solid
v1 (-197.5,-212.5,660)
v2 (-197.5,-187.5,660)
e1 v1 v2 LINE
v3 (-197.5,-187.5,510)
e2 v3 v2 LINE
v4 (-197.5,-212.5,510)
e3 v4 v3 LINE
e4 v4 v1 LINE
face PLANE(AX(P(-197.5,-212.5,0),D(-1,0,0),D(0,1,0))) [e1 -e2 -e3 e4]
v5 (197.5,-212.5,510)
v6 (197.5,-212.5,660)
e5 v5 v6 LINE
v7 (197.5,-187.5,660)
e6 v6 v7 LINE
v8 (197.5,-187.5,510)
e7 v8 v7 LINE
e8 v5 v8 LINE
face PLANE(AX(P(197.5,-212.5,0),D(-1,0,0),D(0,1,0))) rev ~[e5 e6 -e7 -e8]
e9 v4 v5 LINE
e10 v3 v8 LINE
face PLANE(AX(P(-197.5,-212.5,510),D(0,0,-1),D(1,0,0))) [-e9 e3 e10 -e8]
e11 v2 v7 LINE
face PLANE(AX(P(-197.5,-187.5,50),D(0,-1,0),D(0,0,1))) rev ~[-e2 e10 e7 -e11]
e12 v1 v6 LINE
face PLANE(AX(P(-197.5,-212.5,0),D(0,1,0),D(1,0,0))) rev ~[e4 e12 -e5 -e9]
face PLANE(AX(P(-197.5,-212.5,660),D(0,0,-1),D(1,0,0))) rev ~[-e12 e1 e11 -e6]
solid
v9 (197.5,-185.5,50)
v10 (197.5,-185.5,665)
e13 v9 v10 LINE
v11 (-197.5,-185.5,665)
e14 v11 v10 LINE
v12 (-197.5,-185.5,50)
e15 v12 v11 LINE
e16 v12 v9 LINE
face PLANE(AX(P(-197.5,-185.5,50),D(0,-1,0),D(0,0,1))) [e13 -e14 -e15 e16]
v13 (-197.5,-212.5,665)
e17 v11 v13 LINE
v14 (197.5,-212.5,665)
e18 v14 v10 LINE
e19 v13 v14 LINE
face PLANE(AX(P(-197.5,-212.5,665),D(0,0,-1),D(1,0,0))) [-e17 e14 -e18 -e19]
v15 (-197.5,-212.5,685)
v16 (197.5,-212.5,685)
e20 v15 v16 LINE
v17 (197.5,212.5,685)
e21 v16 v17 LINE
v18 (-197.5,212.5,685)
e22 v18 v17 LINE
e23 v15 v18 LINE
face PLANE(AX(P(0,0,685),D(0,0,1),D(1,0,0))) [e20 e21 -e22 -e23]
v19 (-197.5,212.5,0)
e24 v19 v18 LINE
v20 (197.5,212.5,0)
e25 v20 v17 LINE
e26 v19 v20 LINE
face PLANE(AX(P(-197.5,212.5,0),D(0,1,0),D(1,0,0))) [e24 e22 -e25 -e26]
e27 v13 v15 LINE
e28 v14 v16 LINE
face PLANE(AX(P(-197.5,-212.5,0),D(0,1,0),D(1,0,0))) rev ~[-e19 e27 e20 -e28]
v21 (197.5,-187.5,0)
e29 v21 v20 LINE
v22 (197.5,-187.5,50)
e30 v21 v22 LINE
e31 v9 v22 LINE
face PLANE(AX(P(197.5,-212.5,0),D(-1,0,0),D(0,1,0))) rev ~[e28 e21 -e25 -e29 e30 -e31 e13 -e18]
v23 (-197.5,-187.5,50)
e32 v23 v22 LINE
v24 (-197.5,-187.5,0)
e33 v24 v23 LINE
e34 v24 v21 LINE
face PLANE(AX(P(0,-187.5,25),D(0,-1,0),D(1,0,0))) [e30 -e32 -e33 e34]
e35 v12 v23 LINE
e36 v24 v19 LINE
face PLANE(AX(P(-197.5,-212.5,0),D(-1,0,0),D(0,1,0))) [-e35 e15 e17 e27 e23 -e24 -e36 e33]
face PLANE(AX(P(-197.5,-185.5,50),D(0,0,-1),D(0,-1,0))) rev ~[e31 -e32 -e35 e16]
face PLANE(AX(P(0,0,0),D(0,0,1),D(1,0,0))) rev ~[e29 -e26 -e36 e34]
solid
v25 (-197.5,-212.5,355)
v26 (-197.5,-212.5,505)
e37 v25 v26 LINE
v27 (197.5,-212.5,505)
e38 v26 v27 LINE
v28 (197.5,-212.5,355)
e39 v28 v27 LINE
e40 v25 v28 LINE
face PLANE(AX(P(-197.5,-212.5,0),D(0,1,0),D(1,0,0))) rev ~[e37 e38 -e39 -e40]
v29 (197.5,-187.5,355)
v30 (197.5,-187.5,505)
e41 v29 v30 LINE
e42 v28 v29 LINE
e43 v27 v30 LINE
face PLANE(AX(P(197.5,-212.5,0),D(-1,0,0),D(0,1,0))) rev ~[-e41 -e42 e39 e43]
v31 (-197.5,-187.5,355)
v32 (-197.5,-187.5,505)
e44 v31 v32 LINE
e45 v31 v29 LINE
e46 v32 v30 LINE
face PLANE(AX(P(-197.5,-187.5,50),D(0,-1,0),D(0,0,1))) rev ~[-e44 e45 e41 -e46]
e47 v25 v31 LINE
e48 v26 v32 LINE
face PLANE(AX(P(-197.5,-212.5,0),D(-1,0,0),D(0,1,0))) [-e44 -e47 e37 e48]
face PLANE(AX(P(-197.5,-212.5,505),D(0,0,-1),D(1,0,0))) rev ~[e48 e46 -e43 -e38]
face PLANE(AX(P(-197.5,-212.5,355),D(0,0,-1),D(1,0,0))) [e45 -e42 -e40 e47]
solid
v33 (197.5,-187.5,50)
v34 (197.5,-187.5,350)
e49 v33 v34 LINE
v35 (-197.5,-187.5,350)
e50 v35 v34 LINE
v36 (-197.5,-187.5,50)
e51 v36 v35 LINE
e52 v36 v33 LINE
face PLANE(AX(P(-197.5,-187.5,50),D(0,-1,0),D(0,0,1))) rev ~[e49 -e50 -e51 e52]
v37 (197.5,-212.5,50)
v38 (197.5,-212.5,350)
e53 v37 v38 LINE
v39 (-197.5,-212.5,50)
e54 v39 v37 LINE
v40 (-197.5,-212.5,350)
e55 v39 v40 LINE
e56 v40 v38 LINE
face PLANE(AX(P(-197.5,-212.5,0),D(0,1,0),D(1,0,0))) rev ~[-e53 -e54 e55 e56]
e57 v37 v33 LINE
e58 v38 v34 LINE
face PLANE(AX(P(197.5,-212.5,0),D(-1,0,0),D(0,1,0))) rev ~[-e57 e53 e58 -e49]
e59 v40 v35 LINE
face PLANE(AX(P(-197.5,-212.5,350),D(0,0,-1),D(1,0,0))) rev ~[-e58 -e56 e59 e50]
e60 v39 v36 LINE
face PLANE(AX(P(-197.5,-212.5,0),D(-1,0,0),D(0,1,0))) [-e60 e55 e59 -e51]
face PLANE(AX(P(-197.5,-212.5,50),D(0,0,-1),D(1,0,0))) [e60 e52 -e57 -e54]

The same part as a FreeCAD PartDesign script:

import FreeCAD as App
import Part
import Sketcher
Q = App.Units.Quantity

doc = App.newDocument("Part")
body = doc.addObject("PartDesign::Body", "Body")
body.AllowCompound = True

# Sketch on XY plane
sketch1 = doc.addObject("Sketcher::SketchObject", "Sketch")
body.addObject(sketch1)
sketch1.AttachmentSupport = (doc.XY_Plane, [""])
sketch1.MapMode = "FlatFace"
sketch1.addGeometry([
    Part.LineSegment(App.Vector(-198, 212, 0), App.Vector(-198, -212, 0)),
    Part.LineSegment(App.Vector(-198, -212, 0), App.Vector(198, -212, 0)),
    Part.LineSegment(App.Vector(198, -212, 0), App.Vector(198, 212, 0)),
    Part.LineSegment(App.Vector(198, 212, 0), App.Vector(-198, 212, 0)),
], False)
sketch1.addConstraint([
    Sketcher.Constraint("Coincident", 0, 2, 1, 1),
    Sketcher.Constraint("Coincident", 1, 2, 2, 1),
    Sketcher.Constraint("Coincident", 2, 2, 3, 1),
    Sketcher.Constraint("Coincident", 3, 2, 0, 1),
    Sketcher.Constraint("Vertical", 0),
    Sketcher.Constraint("Horizontal", 1),
    Sketcher.Constraint("Vertical", 2),
    Sketcher.Constraint("Horizontal", 3),
    Sketcher.Constraint("Symmetric", 0, 2, 2, 2, -1, 1),
    Sketcher.Constraint("DistanceX", 1, 1, 1, 2, Q("395 mm")),
    Sketcher.Constraint("DistanceY", 0, 2, 0, 1, Q("425 mm")),
])
pad1 = doc.addObject("PartDesign::Pad", "Pad")
body.addObject(pad1)
pad1.Profile = sketch1
pad1.Length = 685

# Sketch on XZ plane
sketch2 = doc.addObject("Sketcher::SketchObject", "Sketch001")
body.addObject(sketch2)
sketch2.AttachmentSupport = (doc.XZ_Plane, [""])
sketch2.MapMode = "FlatFace"
sketch2.AttachmentOffset = App.Placement(App.Vector(0, 0, 212.5), App.Rotation())
sketch2.addGeometry([
    Part.LineSegment(App.Vector(-198, 355, 0), App.Vector(-198, 350, 0)),  # 0
    Part.LineSegment(App.Vector(-198, 350, 0), App.Vector(198, 350, 0)),  # 1
    Part.LineSegment(App.Vector(198, 350, 0), App.Vector(198, 355, 0)),  # 2
    Part.LineSegment(App.Vector(198, 355, 0), App.Vector(-198, 355, 0)),  # 3
    Part.LineSegment(App.Vector(-198, 665, 0), App.Vector(-198, 660, 0)),  # 4
    Part.LineSegment(App.Vector(-198, 660, 0), App.Vector(198, 660, 0)),  # 5
    Part.LineSegment(App.Vector(198, 660, 0), App.Vector(198, 665, 0)),  # 6
    Part.LineSegment(App.Vector(198, 665, 0), App.Vector(-198, 665, 0)),  # 7
    Part.LineSegment(App.Vector(-198, 510, 0), App.Vector(-198, 505, 0)),  # 8
    Part.LineSegment(App.Vector(-198, 505, 0), App.Vector(198, 505, 0)),  # 9
    Part.LineSegment(App.Vector(198, 505, 0), App.Vector(198, 510, 0)),  # 10
    Part.LineSegment(App.Vector(198, 510, 0), App.Vector(-198, 510, 0)),  # 11
    Part.LineSegment(App.Vector(-198, 50, 0), App.Vector(-198, 0, 0)),  # 12
    Part.LineSegment(App.Vector(-198, 0, 0), App.Vector(198, 0, 0)),  # 13
    Part.LineSegment(App.Vector(198, 0, 0), App.Vector(198, 50, 0)),  # 14
    Part.LineSegment(App.Vector(198, 50, 0), App.Vector(-198, 50, 0)),  # 15
], False)
sketch2.addConstraint([
    Sketcher.Constraint("Coincident", 0, 2, 1, 1),
    Sketcher.Constraint("Coincident", 1, 2, 2, 1),
    Sketcher.Constraint("Coincident", 2, 2, 3, 1),
    Sketcher.Constraint("Coincident", 3, 2, 0, 1),
    Sketcher.Constraint("Coincident", 4, 2, 5, 1),
    Sketcher.Constraint("Coincident", 5, 2, 6, 1),
    Sketcher.Constraint("Coincident", 6, 2, 7, 1),
    Sketcher.Constraint("Coincident", 7, 2, 4, 1),
    Sketcher.Constraint("Coincident", 8, 2, 9, 1),
    Sketcher.Constraint("Coincident", 9, 2, 10, 1),
    Sketcher.Constraint("Coincident", 10, 2, 11, 1),
    Sketcher.Constraint("Coincident", 11, 2, 8, 1),
    Sketcher.Constraint("Coincident", 12, 2, 13, 1),
    Sketcher.Constraint("Coincident", 13, 2, 14, 1),
    Sketcher.Constraint("Coincident", 14, 2, 15, 1),
    Sketcher.Constraint("Coincident", 15, 2, 12, 1),
    Sketcher.Constraint("Vertical", 0),
    Sketcher.Constraint("Horizontal", 1),
    Sketcher.Constraint("Vertical", 2),
    Sketcher.Constraint("Horizontal", 3),
    Sketcher.Constraint("Vertical", 4),
    Sketcher.Constraint("Horizontal", 5),
    Sketcher.Constraint("Vertical", 6),
    Sketcher.Constraint("Horizontal", 7),
    Sketcher.Constraint("Vertical", 8),
    Sketcher.Constraint("Horizontal", 9),
    Sketcher.Constraint("Vertical", 10),
    Sketcher.Constraint("Horizontal", 11),
    Sketcher.Constraint("Vertical", 12),
    Sketcher.Constraint("Horizontal", 13),
    Sketcher.Constraint("Vertical", 14),
    Sketcher.Constraint("Horizontal", 15),
    Sketcher.Constraint("Symmetric", 12, 2, 13, 2, -1, 1),
    Sketcher.Constraint("Vertical", 3, 2, 4, 2),
    Sketcher.Constraint("Vertical", 2, 2, 5, 2),
    Sketcher.Constraint("Vertical", 7, 2, 8, 2),
    Sketcher.Constraint("Vertical", 6, 2, 9, 2),
    Sketcher.Constraint("Vertical", 11, 2, 12, 2),
    Sketcher.Constraint("Vertical", 10, 2, 13, 2),
    Sketcher.Constraint("Equal", 2, 4),
    Sketcher.Constraint("Equal", 6, 8),
    Sketcher.Constraint("DistanceX", 1, 1, 1, 2, Q("395 mm")),
    Sketcher.Constraint("DistanceY", 0, 2, 0, 1, Q("5 mm")),
    Sketcher.Constraint("DistanceY", 12, 2, 12, 1, Q("50 mm")),
    Sketcher.Constraint("DistanceY", -1, 1, 0, 2, Q("350 mm")),
    Sketcher.Constraint("DistanceY", -1, 1, 4, 2, Q("660 mm")),
    Sketcher.Constraint("DistanceY", -1, 1, 8, 2, Q("505 mm")),
])
pocket1 = doc.addObject("PartDesign::Pocket", "Pocket")
body.addObject(pocket1)
pocket1.Profile = sketch2
pocket1.Length = 25

# Sketch on YZ plane
sketch3 = doc.addObject("Sketcher::SketchObject", "Sketch002")
body.addObject(sketch3)
sketch3.AttachmentSupport = (doc.YZ_Plane, [""])
sketch3.MapMode = "FlatFace"
sketch3.AttachmentOffset = App.Placement(App.Vector(0, 0, -197.5), App.Rotation())
sketch3.addGeometry([
    Part.LineSegment(App.Vector(-185.5, 665, 0), App.Vector(-185.5, 50, 0)),
    Part.LineSegment(App.Vector(-185.5, 50, 0), App.Vector(-187.5, 50, 0)),
    Part.LineSegment(App.Vector(-187.5, 50, 0), App.Vector(-187.5, 665, 0)),
    Part.LineSegment(App.Vector(-187.5, 665, 0), App.Vector(-185.5, 665, 0)),
], False)
sketch3.addConstraint([
    Sketcher.Constraint("Coincident", 0, 2, 1, 1),
    Sketcher.Constraint("Coincident", 1, 2, 2, 1),
    Sketcher.Constraint("Coincident", 2, 2, 3, 1),
    Sketcher.Constraint("Coincident", 3, 2, 0, 1),
    Sketcher.Constraint("Vertical", 0),
    Sketcher.Constraint("Horizontal", 1),
    Sketcher.Constraint("Vertical", 2),
    Sketcher.Constraint("Horizontal", 3),
    Sketcher.Constraint("DistanceX", 1, 2, 1, 1, Q("2 mm")),
    Sketcher.Constraint("DistanceY", 0, 2, 0, 1, Q("615 mm")),
    Sketcher.Constraint("DistanceY", -1, 1, 0, 2, Q("50 mm")),
    Sketcher.Constraint("DistanceX", 0, 2, -1, 1, Q("185.5 mm")),
])
pocket2 = doc.addObject("PartDesign::Pocket", "Pocket001")
body.addObject(pocket2)
pocket2.Profile = sketch3
pocket2.Type = "ThroughAll"
pocket2.Reversed = True

doc.recompute()
